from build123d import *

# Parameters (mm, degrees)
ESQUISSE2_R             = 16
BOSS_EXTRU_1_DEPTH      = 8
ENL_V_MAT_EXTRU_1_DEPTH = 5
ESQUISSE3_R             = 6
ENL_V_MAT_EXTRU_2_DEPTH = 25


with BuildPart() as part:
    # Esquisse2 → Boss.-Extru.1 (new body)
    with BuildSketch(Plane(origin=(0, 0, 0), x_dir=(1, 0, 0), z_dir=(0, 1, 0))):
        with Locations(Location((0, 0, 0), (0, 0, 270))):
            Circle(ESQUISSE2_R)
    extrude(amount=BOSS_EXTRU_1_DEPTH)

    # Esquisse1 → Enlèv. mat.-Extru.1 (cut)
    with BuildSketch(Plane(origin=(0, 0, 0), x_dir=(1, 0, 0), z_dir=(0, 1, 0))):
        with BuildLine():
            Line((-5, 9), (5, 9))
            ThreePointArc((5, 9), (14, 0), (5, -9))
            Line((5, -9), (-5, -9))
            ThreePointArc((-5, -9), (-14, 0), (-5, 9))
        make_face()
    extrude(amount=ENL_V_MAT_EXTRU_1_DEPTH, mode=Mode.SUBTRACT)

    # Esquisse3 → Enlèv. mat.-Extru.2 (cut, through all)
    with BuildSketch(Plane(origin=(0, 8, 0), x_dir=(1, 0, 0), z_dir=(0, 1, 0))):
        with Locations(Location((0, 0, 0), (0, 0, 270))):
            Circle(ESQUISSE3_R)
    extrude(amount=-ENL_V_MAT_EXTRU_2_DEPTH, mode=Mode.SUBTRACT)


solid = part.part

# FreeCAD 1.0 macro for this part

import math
import FreeCAD as App
import Part
import Sketcher
Q = App.Units.Quantity

doc = App.newDocument("Part")
body = doc.addObject("PartDesign::Body", "Body")

# Sketch on XZ plane
sketch1 = doc.addObject("Sketcher::SketchObject", "Sketch")
body.addObject(sketch1)
sketch1.AttachmentSupport = (doc.XZ_Plane, [""])
sketch1.MapMode = "FlatFace"
sketch1.addGeometry(Part.Circle(App.Vector(0, 0, 0), App.Vector(0, 0, 1), 16), False)
sketch1.addConstraint([
    Sketcher.Constraint("Coincident", 0, 3, -1, 1),
    Sketcher.Constraint("Diameter", 0, Q("32 mm")),
])
pad1 = doc.addObject("PartDesign::Pad", "Pad")
body.addObject(pad1)
pad1.Profile = sketch1
pad1.Length = 8
pad1.Reversed = True

# Sketch on XZ plane
sketch2 = doc.addObject("Sketcher::SketchObject", "Sketch001")
body.addObject(sketch2)
sketch2.AttachmentSupport = (doc.XZ_Plane, [""])
sketch2.MapMode = "FlatFace"
sketch2.addGeometry([
    Part.LineSegment(App.Vector(5, -9, 0), App.Vector(-5, -9, 0)),
    Part.ArcOfCircle(Part.Circle(App.Vector(-5, 0, 0), App.Vector(0, 0, 1), 9), math.radians(90), math.radians(270)),
    Part.LineSegment(App.Vector(-5, 9, 0), App.Vector(5, 9, 0)),
    Part.ArcOfCircle(Part.Circle(App.Vector(5, 0, 0), App.Vector(0, 0, 1), 9), math.radians(-90), math.radians(90)),
], False)
sketch2.addConstraint([
    Sketcher.Constraint("Tangent", 0, 2, 1, 2),
    Sketcher.Constraint("Tangent", 1, 1, 2, 1),
    Sketcher.Constraint("Tangent", 2, 2, 3, 2),
    Sketcher.Constraint("Tangent", 3, 1, 0, 1),
    Sketcher.Constraint("Horizontal", 0),
    Sketcher.Constraint("Horizontal", 2),
    Sketcher.Constraint("Symmetric", 1, 3, 3, 3, -1, 1),
    Sketcher.Constraint("Radius", 1, Q("9 mm")),
    Sketcher.Constraint("DistanceX", 0, 2, 0, 1, Q("10 mm")),
])
pocket1 = doc.addObject("PartDesign::Pocket", "Pocket")
body.addObject(pocket1)
pocket1.Profile = sketch2
pocket1.Length = 5

# Sketch on XZ plane
sketch3 = doc.addObject("Sketcher::SketchObject", "Sketch002")
body.addObject(sketch3)
sketch3.AttachmentSupport = (doc.XZ_Plane, [""])
sketch3.MapMode = "FlatFace"
sketch3.AttachmentOffset = App.Placement(App.Vector(0, 0, -8), App.Rotation())
sketch3.addGeometry(Part.Circle(App.Vector(0, 0, 0), App.Vector(0, 0, 1), 6), False)
sketch3.addConstraint([
    Sketcher.Constraint("Coincident", 0, 3, -1, 1),
    Sketcher.Constraint("Diameter", 0, Q("12 mm")),
])
pocket2 = doc.addObject("PartDesign::Pocket", "Pocket001")
body.addObject(pocket2)
pocket2.Profile = sketch3
pocket2.Type = "ThroughAll"
pocket2.Reversed = True

doc.recompute()
